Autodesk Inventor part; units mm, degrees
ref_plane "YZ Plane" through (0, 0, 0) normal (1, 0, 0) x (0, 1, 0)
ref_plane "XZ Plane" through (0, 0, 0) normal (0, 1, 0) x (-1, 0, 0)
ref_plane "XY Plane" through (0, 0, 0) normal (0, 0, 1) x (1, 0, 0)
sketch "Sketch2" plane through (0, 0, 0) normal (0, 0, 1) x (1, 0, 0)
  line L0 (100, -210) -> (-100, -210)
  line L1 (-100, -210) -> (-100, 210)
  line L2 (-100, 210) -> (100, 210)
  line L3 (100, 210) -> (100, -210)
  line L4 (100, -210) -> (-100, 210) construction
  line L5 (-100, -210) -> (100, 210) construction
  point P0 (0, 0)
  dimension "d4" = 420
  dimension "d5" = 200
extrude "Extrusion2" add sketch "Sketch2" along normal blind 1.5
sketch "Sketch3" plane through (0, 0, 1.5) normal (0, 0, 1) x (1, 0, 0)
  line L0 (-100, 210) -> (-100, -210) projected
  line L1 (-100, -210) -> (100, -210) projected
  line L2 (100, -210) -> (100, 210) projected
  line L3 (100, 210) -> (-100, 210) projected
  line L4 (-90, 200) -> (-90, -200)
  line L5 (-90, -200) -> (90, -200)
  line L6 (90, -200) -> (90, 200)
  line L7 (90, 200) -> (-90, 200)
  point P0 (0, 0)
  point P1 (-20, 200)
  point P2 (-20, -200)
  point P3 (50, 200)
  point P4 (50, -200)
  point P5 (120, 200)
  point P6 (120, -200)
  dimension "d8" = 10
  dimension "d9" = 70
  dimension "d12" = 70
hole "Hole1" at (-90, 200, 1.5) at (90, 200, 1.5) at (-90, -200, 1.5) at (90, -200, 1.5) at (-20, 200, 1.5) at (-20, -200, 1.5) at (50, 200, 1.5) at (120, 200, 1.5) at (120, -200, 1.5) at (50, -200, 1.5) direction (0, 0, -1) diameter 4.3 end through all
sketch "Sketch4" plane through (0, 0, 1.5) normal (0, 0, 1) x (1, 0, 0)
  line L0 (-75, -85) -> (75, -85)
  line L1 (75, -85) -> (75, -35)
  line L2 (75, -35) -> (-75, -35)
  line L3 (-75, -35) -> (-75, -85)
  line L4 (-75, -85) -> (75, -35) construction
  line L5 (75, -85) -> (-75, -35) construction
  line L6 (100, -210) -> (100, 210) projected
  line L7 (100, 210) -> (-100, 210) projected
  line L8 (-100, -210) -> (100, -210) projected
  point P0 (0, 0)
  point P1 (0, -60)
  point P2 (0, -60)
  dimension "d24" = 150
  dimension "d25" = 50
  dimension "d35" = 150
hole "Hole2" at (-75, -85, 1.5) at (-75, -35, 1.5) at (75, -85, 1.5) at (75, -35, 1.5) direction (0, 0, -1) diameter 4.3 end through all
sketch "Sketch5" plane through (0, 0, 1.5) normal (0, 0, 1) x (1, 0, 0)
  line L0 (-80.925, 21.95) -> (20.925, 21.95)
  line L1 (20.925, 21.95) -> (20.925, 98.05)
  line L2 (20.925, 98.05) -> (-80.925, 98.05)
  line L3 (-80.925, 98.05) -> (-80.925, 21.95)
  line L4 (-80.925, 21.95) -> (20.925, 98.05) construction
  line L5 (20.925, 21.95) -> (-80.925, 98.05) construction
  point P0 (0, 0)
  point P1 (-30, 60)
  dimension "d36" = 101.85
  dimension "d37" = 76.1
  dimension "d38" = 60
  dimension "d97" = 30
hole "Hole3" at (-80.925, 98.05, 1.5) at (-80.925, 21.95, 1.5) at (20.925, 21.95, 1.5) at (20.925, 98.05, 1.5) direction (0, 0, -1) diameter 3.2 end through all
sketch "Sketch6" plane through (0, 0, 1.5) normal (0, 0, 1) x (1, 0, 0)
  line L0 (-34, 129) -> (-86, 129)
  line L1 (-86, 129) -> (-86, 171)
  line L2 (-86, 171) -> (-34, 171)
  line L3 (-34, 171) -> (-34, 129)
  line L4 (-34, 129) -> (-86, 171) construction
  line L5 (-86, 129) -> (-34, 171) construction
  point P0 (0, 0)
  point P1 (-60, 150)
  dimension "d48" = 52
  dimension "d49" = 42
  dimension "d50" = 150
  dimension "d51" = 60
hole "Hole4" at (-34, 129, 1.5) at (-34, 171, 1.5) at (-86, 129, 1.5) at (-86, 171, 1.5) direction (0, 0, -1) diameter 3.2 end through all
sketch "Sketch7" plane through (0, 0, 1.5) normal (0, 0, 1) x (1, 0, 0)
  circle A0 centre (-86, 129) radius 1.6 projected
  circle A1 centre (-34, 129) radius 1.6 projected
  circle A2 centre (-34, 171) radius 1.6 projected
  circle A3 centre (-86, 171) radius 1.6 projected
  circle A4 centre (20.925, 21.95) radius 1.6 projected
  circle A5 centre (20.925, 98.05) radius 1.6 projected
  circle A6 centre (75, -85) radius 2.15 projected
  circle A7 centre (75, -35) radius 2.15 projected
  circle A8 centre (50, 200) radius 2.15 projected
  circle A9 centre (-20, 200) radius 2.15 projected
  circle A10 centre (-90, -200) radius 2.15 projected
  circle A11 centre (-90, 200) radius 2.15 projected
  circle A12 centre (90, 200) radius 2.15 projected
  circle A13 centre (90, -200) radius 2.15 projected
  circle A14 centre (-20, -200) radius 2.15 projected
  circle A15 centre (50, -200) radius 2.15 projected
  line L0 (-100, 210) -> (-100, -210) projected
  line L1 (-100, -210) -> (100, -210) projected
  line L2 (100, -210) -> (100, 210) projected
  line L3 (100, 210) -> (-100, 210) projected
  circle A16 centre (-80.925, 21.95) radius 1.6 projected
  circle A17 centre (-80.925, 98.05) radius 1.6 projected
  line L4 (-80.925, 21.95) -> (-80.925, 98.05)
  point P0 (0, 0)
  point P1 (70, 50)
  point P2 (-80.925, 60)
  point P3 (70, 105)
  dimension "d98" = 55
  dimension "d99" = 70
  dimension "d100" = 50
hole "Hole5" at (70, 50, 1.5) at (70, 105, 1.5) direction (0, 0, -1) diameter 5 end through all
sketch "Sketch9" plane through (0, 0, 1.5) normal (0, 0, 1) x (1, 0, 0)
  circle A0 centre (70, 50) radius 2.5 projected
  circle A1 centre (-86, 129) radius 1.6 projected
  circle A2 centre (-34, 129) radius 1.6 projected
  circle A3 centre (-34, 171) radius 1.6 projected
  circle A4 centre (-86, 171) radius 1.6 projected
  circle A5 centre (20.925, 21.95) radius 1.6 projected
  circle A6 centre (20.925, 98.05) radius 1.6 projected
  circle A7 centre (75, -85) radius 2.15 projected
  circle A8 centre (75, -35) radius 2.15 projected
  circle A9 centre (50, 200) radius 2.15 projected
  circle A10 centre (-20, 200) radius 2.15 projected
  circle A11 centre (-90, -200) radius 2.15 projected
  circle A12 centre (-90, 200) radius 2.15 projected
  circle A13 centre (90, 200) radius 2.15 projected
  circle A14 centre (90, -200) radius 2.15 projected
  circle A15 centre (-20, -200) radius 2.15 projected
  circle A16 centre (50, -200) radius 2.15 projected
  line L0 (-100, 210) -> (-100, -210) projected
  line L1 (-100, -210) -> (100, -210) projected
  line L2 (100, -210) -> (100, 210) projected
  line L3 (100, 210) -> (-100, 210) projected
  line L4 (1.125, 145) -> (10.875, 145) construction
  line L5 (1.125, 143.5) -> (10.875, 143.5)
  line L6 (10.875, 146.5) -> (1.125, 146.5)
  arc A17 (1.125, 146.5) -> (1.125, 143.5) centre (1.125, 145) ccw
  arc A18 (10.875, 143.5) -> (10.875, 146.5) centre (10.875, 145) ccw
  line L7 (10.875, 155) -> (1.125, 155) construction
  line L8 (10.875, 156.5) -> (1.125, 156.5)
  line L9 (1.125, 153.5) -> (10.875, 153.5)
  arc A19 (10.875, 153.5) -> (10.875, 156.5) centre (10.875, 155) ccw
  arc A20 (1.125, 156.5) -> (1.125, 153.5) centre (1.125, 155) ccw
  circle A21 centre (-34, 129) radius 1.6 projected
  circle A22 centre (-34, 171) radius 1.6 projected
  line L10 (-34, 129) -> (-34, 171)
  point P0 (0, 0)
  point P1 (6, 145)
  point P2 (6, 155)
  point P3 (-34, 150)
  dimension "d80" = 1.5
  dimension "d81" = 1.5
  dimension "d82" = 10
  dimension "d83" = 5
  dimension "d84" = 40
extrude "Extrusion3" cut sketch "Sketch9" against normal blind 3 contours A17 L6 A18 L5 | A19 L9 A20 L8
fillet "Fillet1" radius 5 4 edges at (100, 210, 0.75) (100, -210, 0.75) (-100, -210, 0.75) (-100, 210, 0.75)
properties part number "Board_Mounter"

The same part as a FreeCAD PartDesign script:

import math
import FreeCAD as App
import Part
import Sketcher

V = App.Vector
Q = App.Units.Quantity


def edges_at(feature, points):
    """Names of the edges that pass closest to the given points."""
    edges = feature.Shape.Edges
    near = lambda p: min(range(len(edges)), key=lambda i: edges[i].distToShape(Part.Vertex(*p))[0])
    return sorted({f"Edge{near(p) + 1}" for p in points})

doc = App.newDocument("Part")
params = doc.addObject("Spreadsheet::Sheet", "Params")
for row, (alias, value) in enumerate([
    ("sketch1_width", "200 mm"),
    ("sketch1_height", "420 mm"),
    ("pad1_length", "1.5 mm"),
    ("sketch2_diameter", "4.3 mm"),
    ("hole_diameter", "4.3 mm"),
    ("sketch3_diameter", "4.3 mm"),
    ("hole2_diameter", "4.3 mm"),
    ("sketch4_diameter", "3.2 mm"),
    ("hole3_diameter", "3.2 mm"),
    ("sketch5_diameter", "3.2 mm"),
    ("hole4_diameter", "3.2 mm"),
    ("sketch6_diameter", "5 mm"),
    ("hole5_diameter", "5 mm"),
    ("sketch7_radius", "1.5 mm"),
    ("sketch7_width", "9.75 mm"),
    ("pocket1_length", "3 mm"),
    ("fillet_radius", "5 mm"),
], start=1):
    params.set(f"A{row}", alias)
    params.set(f"B{row}", "=" + value)
    params.setAlias(f"B{row}", alias)

body = doc.addObject("PartDesign::Body", "Body")

# Sketch on XY plane
sketch1 = body.newObject("Sketcher::SketchObject", "Sketch")
sketch1.AttachmentSupport = (doc.getObject("XY_Plane"), [""])
sketch1.MapMode = "FlatFace"
sketch1.addGeometry(Part.LineSegment(V(-100, -210, 0), V(100, -210, 0)), False)
sketch1.addGeometry(Part.LineSegment(V(100, -210, 0), V(100, 210, 0)), False)
sketch1.addGeometry(Part.LineSegment(V(100, 210, 0), V(-100, 210, 0)), False)
sketch1.addGeometry(Part.LineSegment(V(-100, 210, 0), V(-100, -210, 0)), False)
sketch1.addConstraint(Sketcher.Constraint("Coincident", 0, 2, 1, 1))
sketch1.addConstraint(Sketcher.Constraint("Coincident", 1, 2, 2, 1))
sketch1.addConstraint(Sketcher.Constraint("Coincident", 2, 2, 3, 1))
sketch1.addConstraint(Sketcher.Constraint("Coincident", 3, 2, 0, 1))
sketch1.addConstraint(Sketcher.Constraint("Horizontal", 0))
sketch1.addConstraint(Sketcher.Constraint("Vertical", 1))
sketch1.addConstraint(Sketcher.Constraint("Horizontal", 2))
sketch1.addConstraint(Sketcher.Constraint("Vertical", 3))
sketch1.addConstraint(Sketcher.Constraint("Symmetric", 0, 2, 2, 2, -1, 1))
sketch1.addConstraint(Sketcher.Constraint("DistanceX", 0, 1, 0, 2, Q("200 mm")))
sketch1.addConstraint(Sketcher.Constraint("DistanceY", 1, 1, 1, 2, Q("420 mm")))
sketch1.setExpression("Constraints[9]", "Params.sketch1_width")
sketch1.setExpression("Constraints[10]", "Params.sketch1_height")
pad1 = body.newObject("PartDesign::Pad", "Pad")
pad1.Profile = sketch1
pad1.setExpression("Length", "Params.pad1_length")

# Sketch on XY plane
sketch2 = body.newObject("Sketcher::SketchObject", "Sketch001")
sketch2.AttachmentSupport = (doc.getObject("XY_Plane"), [""])
sketch2.MapMode = "FlatFace"
sketch2.AttachmentOffset = App.Placement(V(0, 0, 1.5), App.Rotation())
sketch2.addGeometry(Part.Circle(V(-90, 200, 0), V(0, 0, 1), 2.15), False)
sketch2.addGeometry(Part.Circle(V(90, 200, 0), V(0, 0, 1), 2.15), False)
sketch2.addGeometry(Part.Circle(V(-90, -200, 0), V(0, 0, 1), 2.15), False)
sketch2.addGeometry(Part.Circle(V(90, -200, 0), V(0, 0, 1), 2.15), False)
sketch2.addGeometry(Part.Circle(V(-20, 200, 0), V(0, 0, 1), 2.15), False)
sketch2.addGeometry(Part.Circle(V(-20, -200, 0), V(0, 0, 1), 2.15), False)
sketch2.addGeometry(Part.Circle(V(50, 200, 0), V(0, 0, 1), 2.15), False)
sketch2.addGeometry(Part.Circle(V(120, 200, 0), V(0, 0, 1), 2.15), False)
sketch2.addGeometry(Part.Circle(V(120, -200, 0), V(0, 0, 1), 2.15), False)
sketch2.addGeometry(Part.Circle(V(50, -200, 0), V(0, 0, 1), 2.15), False)
sketch2.addConstraint(Sketcher.Constraint("Equal", 0, 1))
sketch2.addConstraint(Sketcher.Constraint("Equal", 1, 2))
sketch2.addConstraint(Sketcher.Constraint("Equal", 2, 3))
sketch2.addConstraint(Sketcher.Constraint("Equal", 3, 4))
sketch2.addConstraint(Sketcher.Constraint("Equal", 4, 5))
sketch2.addConstraint(Sketcher.Constraint("Equal", 5, 6))
sketch2.addConstraint(Sketcher.Constraint("Equal", 6, 7))
sketch2.addConstraint(Sketcher.Constraint("Equal", 7, 8))
sketch2.addConstraint(Sketcher.Constraint("Equal", 8, 9))
sketch2.addConstraint(Sketcher.Constraint("Symmetric", 1, 3, 2, 3, -1, 1))
sketch2.addConstraint(Sketcher.Constraint("Symmetric", 0, 3, 3, 3, -1, 1))
sketch2.addConstraint(Sketcher.Constraint("Symmetric", 0, 3, 1, 3, -2))
sketch2.addConstraint(Sketcher.Constraint("Symmetric", 4, 3, 5, 3, -1))
sketch2.addConstraint(Sketcher.Constraint("Symmetric", 7, 3, 8, 3, -1))
sketch2.addConstraint(Sketcher.Constraint("Symmetric", 6, 3, 9, 3, -1))
sketch2.addConstraint(Sketcher.Constraint("Horizontal", 1, 3, 4, 3))
sketch2.addConstraint(Sketcher.Constraint("Horizontal", 4, 3, 6, 3))
sketch2.addConstraint(Sketcher.Constraint("Horizontal", 6, 3, 7, 3))
sketch2.addConstraint(Sketcher.Constraint("Diameter", 0, Q("4.3 mm")))
sketch2.addConstraint(Sketcher.Constraint("DistanceX", 0, 3, -1, 1, Q("90 mm")))
sketch2.addConstraint(Sketcher.Constraint("DistanceY", -1, 1, 0, 3, Q("200 mm")))
sketch2.addConstraint(Sketcher.Constraint("DistanceX", 4, 3, -1, 1, Q("20 mm")))
sketch2.addConstraint(Sketcher.Constraint("DistanceX", -1, 1, 6, 3, Q("50 mm")))
sketch2.addConstraint(Sketcher.Constraint("DistanceX", -1, 1, 7, 3, Q("120 mm")))
sketch2.setExpression("Constraints[18]", "Params.sketch2_diameter")
doc.recompute()
hole = body.newObject("PartDesign::Hole", "Hole")
hole.Profile = sketch2
hole.ThreadType = "None"
hole.setExpression("Diameter", "Params.hole_diameter")
hole.DepthType = "ThroughAll"

# Sketch on XY plane
sketch3 = body.newObject("Sketcher::SketchObject", "Sketch002")
sketch3.AttachmentSupport = (doc.getObject("XY_Plane"), [""])
sketch3.MapMode = "FlatFace"
sketch3.AttachmentOffset = App.Placement(V(0, 0, 1.5), App.Rotation())
sketch3.addGeometry(Part.Circle(V(-75, -85, 0), V(0, 0, 1), 2.15), False)
sketch3.addGeometry(Part.Circle(V(-75, -35, 0), V(0, 0, 1), 2.15), False)
sketch3.addGeometry(Part.Circle(V(75, -85, 0), V(0, 0, 1), 2.15), False)
sketch3.addGeometry(Part.Circle(V(75, -35, 0), V(0, 0, 1), 2.15), False)
sketch3.addConstraint(Sketcher.Constraint("Equal", 0, 1))
sketch3.addConstraint(Sketcher.Constraint("Equal", 1, 2))
sketch3.addConstraint(Sketcher.Constraint("Equal", 2, 3))
sketch3.addConstraint(Sketcher.Constraint("Symmetric", 0, 3, 2, 3, -2))
sketch3.addConstraint(Sketcher.Constraint("Symmetric", 1, 3, 3, 3, -2))
sketch3.addConstraint(Sketcher.Constraint("Vertical", 0, 3, 1, 3))
sketch3.addConstraint(Sketcher.Constraint("Diameter", 0, Q("4.3 mm")))
sketch3.addConstraint(Sketcher.Constraint("DistanceX", 0, 3, -1, 1, Q("75 mm")))
sketch3.addConstraint(Sketcher.Constraint("DistanceY", 0, 3, -1, 1, Q("85 mm")))
sketch3.addConstraint(Sketcher.Constraint("DistanceY", 1, 3, -1, 1, Q("35 mm")))
sketch3.setExpression("Constraints[6]", "Params.sketch3_diameter")
doc.recompute()
hole2 = body.newObject("PartDesign::Hole", "Hole001")
hole2.Profile = sketch3
hole2.ThreadType = "None"
hole2.setExpression("Diameter", "Params.hole2_diameter")
hole2.DepthType = "ThroughAll"

# Sketch on XY plane
sketch4 = body.newObject("Sketcher::SketchObject", "Sketch003")
sketch4.AttachmentSupport = (doc.getObject("XY_Plane"), [""])
sketch4.MapMode = "FlatFace"
sketch4.AttachmentOffset = App.Placement(V(0, 0, 1.5), App.Rotation())
sketch4.addGeometry(Part.Circle(V(-80.925, 98.05, 0), V(0, 0, 1), 1.6), False)
sketch4.addGeometry(Part.Circle(V(-80.925, 21.95, 0), V(0, 0, 1), 1.6), False)
sketch4.addGeometry(Part.Circle(V(20.925, 21.95, 0), V(0, 0, 1), 1.6), False)
sketch4.addGeometry(Part.Circle(V(20.925, 98.05, 0), V(0, 0, 1), 1.6), False)
sketch4.addConstraint(Sketcher.Constraint("Equal", 0, 1))
sketch4.addConstraint(Sketcher.Constraint("Equal", 1, 2))
sketch4.addConstraint(Sketcher.Constraint("Equal", 2, 3))
sketch4.addConstraint(Sketcher.Constraint("Horizontal", 1, 3, 2, 3))
sketch4.addConstraint(Sketcher.Constraint("Horizontal", 0, 3, 3, 3))
sketch4.addConstraint(Sketcher.Constraint("Vertical", 0, 3, 1, 3))
sketch4.addConstraint(Sketcher.Constraint("Vertical", 2, 3, 3, 3))
sketch4.addConstraint(Sketcher.Constraint("Diameter", 0, Q("3.2 mm")))
sketch4.addConstraint(Sketcher.Constraint("DistanceY", 1, 3, 0, 3, Q("76.1 mm")))
sketch4.addConstraint(Sketcher.Constraint("DistanceY", -1, 1, 0, 3, Q("98.05 mm")))
sketch4.addConstraint(Sketcher.Constraint("DistanceX", 1, 3, 2, 3, Q("101.85 mm")))
sketch4.addConstraint(Sketcher.Constraint("DistanceX", 0, 3, -1, 1, Q("80.925 mm")))
sketch4.setExpression("Constraints[7]", "Params.sketch4_diameter")
doc.recompute()
hole3 = body.newObject("PartDesign::Hole", "Hole002")
hole3.Profile = sketch4
hole3.ThreadType = "None"
hole3.setExpression("Diameter", "Params.hole3_diameter")
hole3.DepthType = "ThroughAll"

# Sketch on XY plane
sketch5 = body.newObject("Sketcher::SketchObject", "Sketch004")
sketch5.AttachmentSupport = (doc.getObject("XY_Plane"), [""])
sketch5.MapMode = "FlatFace"
sketch5.AttachmentOffset = App.Placement(V(0, 0, 1.5), App.Rotation())
sketch5.addGeometry(Part.Circle(V(-34, 129, 0), V(0, 0, 1), 1.6), False)
sketch5.addGeometry(Part.Circle(V(-34, 171, 0), V(0, 0, 1), 1.6), False)
sketch5.addGeometry(Part.Circle(V(-86, 129, 0), V(0, 0, 1), 1.6), False)
sketch5.addGeometry(Part.Circle(V(-86, 171, 0), V(0, 0, 1), 1.6), False)
sketch5.addConstraint(Sketcher.Constraint("Equal", 0, 1))
sketch5.addConstraint(Sketcher.Constraint("Equal", 1, 2))
sketch5.addConstraint(Sketcher.Constraint("Equal", 2, 3))
sketch5.addConstraint(Sketcher.Constraint("Horizontal", 0, 3, 2, 3))
sketch5.addConstraint(Sketcher.Constraint("Horizontal", 1, 3, 3, 3))
sketch5.addConstraint(Sketcher.Constraint("Vertical", 0, 3, 1, 3))
sketch5.addConstraint(Sketcher.Constraint("Vertical", 2, 3, 3, 3))
sketch5.addConstraint(Sketcher.Constraint("Diameter", 0, Q("3.2 mm")))
sketch5.addConstraint(Sketcher.Constraint("DistanceX", 0, 3, -1, 1, Q("34 mm")))
sketch5.addConstraint(Sketcher.Constraint("DistanceY", -1, 1, 0, 3, Q("129 mm")))
sketch5.addConstraint(Sketcher.Constraint("DistanceY", -1, 1, 1, 3, Q("171 mm")))
sketch5.addConstraint(Sketcher.Constraint("DistanceX", 2, 3, -1, 1, Q("86 mm")))
sketch5.setExpression("Constraints[7]", "Params.sketch5_diameter")
doc.recompute()
hole4 = body.newObject("PartDesign::Hole", "Hole003")
hole4.Profile = sketch5
hole4.ThreadType = "None"
hole4.setExpression("Diameter", "Params.hole4_diameter")
hole4.DepthType = "ThroughAll"

# Sketch on XY plane
sketch6 = body.newObject("Sketcher::SketchObject", "Sketch005")
sketch6.AttachmentSupport = (doc.getObject("XY_Plane"), [""])
sketch6.MapMode = "FlatFace"
sketch6.AttachmentOffset = App.Placement(V(0, 0, 1.5), App.Rotation())
sketch6.addGeometry(Part.Circle(V(70, 50, 0), V(0, 0, 1), 2.5), False)
sketch6.addGeometry(Part.Circle(V(70, 105, 0), V(0, 0, 1), 2.5), False)
sketch6.addConstraint(Sketcher.Constraint("Equal", 0, 1))
sketch6.addConstraint(Sketcher.Constraint("Vertical", 0, 3, 1, 3))
sketch6.addConstraint(Sketcher.Constraint("Diameter", 0, Q("5 mm")))
sketch6.addConstraint(Sketcher.Constraint("DistanceX", -1, 1, 0, 3, Q("70 mm")))
sketch6.addConstraint(Sketcher.Constraint("DistanceY", -1, 1, 0, 3, Q("50 mm")))
sketch6.addConstraint(Sketcher.Constraint("DistanceY", -1, 1, 1, 3, Q("105 mm")))
sketch6.setExpression("Constraints[2]", "Params.sketch6_diameter")
doc.recompute()
hole5 = body.newObject("PartDesign::Hole", "Hole004")
hole5.Profile = sketch6
hole5.ThreadType = "None"
hole5.setExpression("Diameter", "Params.hole5_diameter")
hole5.DepthType = "ThroughAll"

# Sketch on XY plane
sketch7 = body.newObject("Sketcher::SketchObject", "Sketch006")
sketch7.AttachmentSupport = (doc.getObject("XY_Plane"), [""])
sketch7.MapMode = "FlatFace"
sketch7.AttachmentOffset = App.Placement(V(0, 0, 1.5), App.Rotation())
sketch7.addGeometry(Part.ArcOfCircle(Part.Circle(V(1.125, 145, 0), V(0, 0, 1), 1.5), math.radians(90), math.radians(270)), False)
sketch7.addGeometry(Part.LineSegment(V(1.125, 143.5, 0), V(10.875, 143.5, 0)), False)
sketch7.addGeometry(Part.ArcOfCircle(Part.Circle(V(10.875, 145, 0), V(0, 0, 1), 1.5), math.radians(-90), math.radians(90)), False)
sketch7.addGeometry(Part.LineSegment(V(10.875, 146.5, 0), V(1.125, 146.5, 0)), False)
sketch7.addGeometry(Part.ArcOfCircle(Part.Circle(V(10.875, 155, 0), V(0, 0, 1), 1.5), math.radians(-90), math.radians(90)), False)
sketch7.addGeometry(Part.LineSegment(V(10.875, 156.5, 0), V(1.125, 156.5, 0)), False)
sketch7.addGeometry(Part.ArcOfCircle(Part.Circle(V(1.125, 155, 0), V(0, 0, 1), 1.5), math.radians(90), math.radians(270)), False)
sketch7.addGeometry(Part.LineSegment(V(1.125, 153.5, 0), V(10.875, 153.5, 0)), False)
sketch7.addConstraint(Sketcher.Constraint("Tangent", 0, 2, 1, 1))
sketch7.addConstraint(Sketcher.Constraint("Tangent", 1, 2, 2, 1))
sketch7.addConstraint(Sketcher.Constraint("Tangent", 2, 2, 3, 1))
sketch7.addConstraint(Sketcher.Constraint("Tangent", 3, 2, 0, 1))
sketch7.addConstraint(Sketcher.Constraint("Tangent", 4, 2, 5, 1))
sketch7.addConstraint(Sketcher.Constraint("Tangent", 5, 2, 6, 1))
sketch7.addConstraint(Sketcher.Constraint("Tangent", 6, 2, 7, 1))
sketch7.addConstraint(Sketcher.Constraint("Tangent", 7, 2, 4, 1))
sketch7.addConstraint(Sketcher.Constraint("Horizontal", 1))
sketch7.addConstraint(Sketcher.Constraint("Horizontal", 3))
sketch7.addConstraint(Sketcher.Constraint("Horizontal", 5))
sketch7.addConstraint(Sketcher.Constraint("Horizontal", 7))
sketch7.addConstraint(Sketcher.Constraint("Equal", 2, 4))
sketch7.addConstraint(Sketcher.Constraint("Vertical", 2, 3, 4, 3))
sketch7.addConstraint(Sketcher.Constraint("Vertical", 0, 3, 6, 3))
sketch7.addConstraint(Sketcher.Constraint("Radius", 0, Q("1.5 mm")))
sketch7.addConstraint(Sketcher.Constraint("DistanceY", 2, 3, 4, 3, Q("10 mm")))
sketch7.addConstraint(Sketcher.Constraint("DistanceY", -1, 1, 0, 3, Q("145 mm")))
sketch7.addConstraint(Sketcher.Constraint("DistanceX", 1, 1, 1, 2, Q("9.75 mm")))
sketch7.addConstraint(Sketcher.Constraint("DistanceX", -1, 1, 0, 3, Q("1.125 mm")))
sketch7.setExpression("Constraints[15]", "Params.sketch7_radius")
sketch7.setExpression("Constraints[18]", "Params.sketch7_width")
pocket1 = body.newObject("PartDesign::Pocket", "Pocket")
pocket1.Profile = sketch7
pocket1.setExpression("Length", "Params.pocket1_length")
doc.recompute()

fillet = body.newObject("PartDesign::Fillet", "Fillet")
fillet.Base = (pocket1, edges_at(pocket1, [
    (100, 210, 0.75),
    (100, -210, 0.75),
    (-100, -210, 0.75),
    (-100, 210, 0.75),
]))
fillet.setExpression("Radius", "Params.fillet_radius")

doc.recompute()
